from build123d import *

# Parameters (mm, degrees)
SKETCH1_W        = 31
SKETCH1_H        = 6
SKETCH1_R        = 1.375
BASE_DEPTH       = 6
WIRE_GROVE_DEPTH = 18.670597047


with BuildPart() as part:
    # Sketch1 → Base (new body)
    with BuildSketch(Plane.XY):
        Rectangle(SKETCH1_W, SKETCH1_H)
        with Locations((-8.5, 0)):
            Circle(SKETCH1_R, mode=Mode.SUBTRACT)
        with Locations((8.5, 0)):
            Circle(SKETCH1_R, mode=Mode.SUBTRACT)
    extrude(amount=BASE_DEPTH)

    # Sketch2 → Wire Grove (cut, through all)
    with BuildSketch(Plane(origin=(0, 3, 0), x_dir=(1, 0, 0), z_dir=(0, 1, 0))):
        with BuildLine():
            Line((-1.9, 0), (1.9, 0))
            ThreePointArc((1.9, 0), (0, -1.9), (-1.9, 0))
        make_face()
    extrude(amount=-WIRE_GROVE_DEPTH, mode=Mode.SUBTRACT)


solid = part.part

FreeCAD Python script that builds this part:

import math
import FreeCAD as App
import Part
import Sketcher
from FreeCAD import Vector


def add_polygon(sketch, points):
    """Adds a closed chain of lines whose ends are joined by coincident constraints."""
    first, n = sketch.GeometryCount, len(points)
    for a, b in zip(points, points[1:] + points[:1]):
        sketch.addGeometry(Part.LineSegment(App.Vector(*a, 0), App.Vector(*b, 0)), False)
    for i in range(n):
        sketch.addConstraint(Sketcher.Constraint("Coincident", first + i, 2, first + (i + 1) % n, 1))

doc = App.newDocument("Part")
params = doc.addObject("Spreadsheet::Sheet", "Params")
for row, (alias, value) in enumerate([
    ("sketch1_diameter", "2.75 mm"),
    ("sketch1_width", "31 mm"),
    ("sketch1_height", "6 mm"),
    ("pad1_length", "6 mm"),
    ("sketch2_radius", "1.9 mm"),
], start=1):
    params.set(f"A{row}", alias)
    params.set(f"B{row}", "=" + value)
    params.setAlias(f"B{row}", alias)

body = doc.addObject("PartDesign::Body", "Body")

sketch1 = body.newObject("Sketcher::SketchObject", "Sketch")
sketch1.AttachmentSupport = (doc.getObject("XY_Plane"), [""])
sketch1.MapMode = "FlatFace"
add_polygon(sketch1, [(-15.5, 3), (-15.5, -3), (15.5, -3), (15.5, 3)])
sketch1.addGeometry(Part.Circle(Vector(-8.5, 0, 0), Vector(0, 0, 1), 1.4), False)
sketch1.addGeometry(Part.Circle(Vector(8.5, 0, 0), Vector(0, 0, 1), 1.4), False)
sketch1.addConstraint([
    Sketcher.Constraint("Vertical", 0),
    Sketcher.Constraint("Horizontal", 1),
    Sketcher.Constraint("Vertical", 2),
    Sketcher.Constraint("Horizontal", 3),
    Sketcher.Constraint("Equal", 4, 5),
    Sketcher.Constraint("Symmetric", 4, 3, 5, 3, -1, 1),
    Sketcher.Constraint("Symmetric", 0, 2, 2, 2, -1, 1),
    Sketcher.Constraint("PointOnObject", 4, 3, -1),
    Sketcher.Constraint("Diameter", 4, 2.75),
    Sketcher.Constraint("DistanceX", 1, 1, 1, 2, 31.0),
    Sketcher.Constraint("DistanceY", 0, 2, 0, 1, 6.0),
    Sketcher.Constraint("DistanceX", 4, 3, 5, 3, 17.0),
])
sketch1.setExpression("Constraints[12]", "Params.sketch1_diameter")
sketch1.setExpression("Constraints[13]", "Params.sketch1_width")
sketch1.setExpression("Constraints[14]", "Params.sketch1_height")
pad1 = body.newObject("PartDesign::Pad", "Pad")
pad1.Profile = sketch1
pad1.setExpression("Length", "Params.pad1_length")

sketch2 = body.newObject("Sketcher::SketchObject", "Sketch001")
sketch2.AttachmentSupport = (doc.getObject("XZ_Plane"), [""])
sketch2.MapMode = "FlatFace"
sketch2.AttachmentOffset = App.Placement(Vector(0, 0, -3), App.Rotation())
sketch2.addGeometry([
    Part.LineSegment(Vector(1.9, 0, 0), Vector(-1.9, 0, 0)),
    Part.ArcOfCircle(Part.Circle(Vector(0, 0, 0), Vector(0, 0, 1), 1.9), math.radians(0), math.radians(180)),
], False)
sketch2.addConstraint([
    Sketcher.Constraint("Coincident", 0, 1, 1, 1),
    Sketcher.Constraint("Coincident", 1, 2, 0, 2),
    Sketcher.Constraint("Horizontal", 0),
    Sketcher.Constraint("Coincident", 1, 3, -1, 1),
    Sketcher.Constraint("PointOnObject", 0, 1, -1),
    Sketcher.Constraint("Radius", 1, 1.9),
])
sketch2.setExpression("Constraints[5]", "Params.sketch2_radius")
pocket1 = body.newObject("PartDesign::Pocket", "Pocket")
pocket1.Profile = sketch2
pocket1.Type = "ThroughAll"
pocket1.Reversed = True

doc.recompute()
